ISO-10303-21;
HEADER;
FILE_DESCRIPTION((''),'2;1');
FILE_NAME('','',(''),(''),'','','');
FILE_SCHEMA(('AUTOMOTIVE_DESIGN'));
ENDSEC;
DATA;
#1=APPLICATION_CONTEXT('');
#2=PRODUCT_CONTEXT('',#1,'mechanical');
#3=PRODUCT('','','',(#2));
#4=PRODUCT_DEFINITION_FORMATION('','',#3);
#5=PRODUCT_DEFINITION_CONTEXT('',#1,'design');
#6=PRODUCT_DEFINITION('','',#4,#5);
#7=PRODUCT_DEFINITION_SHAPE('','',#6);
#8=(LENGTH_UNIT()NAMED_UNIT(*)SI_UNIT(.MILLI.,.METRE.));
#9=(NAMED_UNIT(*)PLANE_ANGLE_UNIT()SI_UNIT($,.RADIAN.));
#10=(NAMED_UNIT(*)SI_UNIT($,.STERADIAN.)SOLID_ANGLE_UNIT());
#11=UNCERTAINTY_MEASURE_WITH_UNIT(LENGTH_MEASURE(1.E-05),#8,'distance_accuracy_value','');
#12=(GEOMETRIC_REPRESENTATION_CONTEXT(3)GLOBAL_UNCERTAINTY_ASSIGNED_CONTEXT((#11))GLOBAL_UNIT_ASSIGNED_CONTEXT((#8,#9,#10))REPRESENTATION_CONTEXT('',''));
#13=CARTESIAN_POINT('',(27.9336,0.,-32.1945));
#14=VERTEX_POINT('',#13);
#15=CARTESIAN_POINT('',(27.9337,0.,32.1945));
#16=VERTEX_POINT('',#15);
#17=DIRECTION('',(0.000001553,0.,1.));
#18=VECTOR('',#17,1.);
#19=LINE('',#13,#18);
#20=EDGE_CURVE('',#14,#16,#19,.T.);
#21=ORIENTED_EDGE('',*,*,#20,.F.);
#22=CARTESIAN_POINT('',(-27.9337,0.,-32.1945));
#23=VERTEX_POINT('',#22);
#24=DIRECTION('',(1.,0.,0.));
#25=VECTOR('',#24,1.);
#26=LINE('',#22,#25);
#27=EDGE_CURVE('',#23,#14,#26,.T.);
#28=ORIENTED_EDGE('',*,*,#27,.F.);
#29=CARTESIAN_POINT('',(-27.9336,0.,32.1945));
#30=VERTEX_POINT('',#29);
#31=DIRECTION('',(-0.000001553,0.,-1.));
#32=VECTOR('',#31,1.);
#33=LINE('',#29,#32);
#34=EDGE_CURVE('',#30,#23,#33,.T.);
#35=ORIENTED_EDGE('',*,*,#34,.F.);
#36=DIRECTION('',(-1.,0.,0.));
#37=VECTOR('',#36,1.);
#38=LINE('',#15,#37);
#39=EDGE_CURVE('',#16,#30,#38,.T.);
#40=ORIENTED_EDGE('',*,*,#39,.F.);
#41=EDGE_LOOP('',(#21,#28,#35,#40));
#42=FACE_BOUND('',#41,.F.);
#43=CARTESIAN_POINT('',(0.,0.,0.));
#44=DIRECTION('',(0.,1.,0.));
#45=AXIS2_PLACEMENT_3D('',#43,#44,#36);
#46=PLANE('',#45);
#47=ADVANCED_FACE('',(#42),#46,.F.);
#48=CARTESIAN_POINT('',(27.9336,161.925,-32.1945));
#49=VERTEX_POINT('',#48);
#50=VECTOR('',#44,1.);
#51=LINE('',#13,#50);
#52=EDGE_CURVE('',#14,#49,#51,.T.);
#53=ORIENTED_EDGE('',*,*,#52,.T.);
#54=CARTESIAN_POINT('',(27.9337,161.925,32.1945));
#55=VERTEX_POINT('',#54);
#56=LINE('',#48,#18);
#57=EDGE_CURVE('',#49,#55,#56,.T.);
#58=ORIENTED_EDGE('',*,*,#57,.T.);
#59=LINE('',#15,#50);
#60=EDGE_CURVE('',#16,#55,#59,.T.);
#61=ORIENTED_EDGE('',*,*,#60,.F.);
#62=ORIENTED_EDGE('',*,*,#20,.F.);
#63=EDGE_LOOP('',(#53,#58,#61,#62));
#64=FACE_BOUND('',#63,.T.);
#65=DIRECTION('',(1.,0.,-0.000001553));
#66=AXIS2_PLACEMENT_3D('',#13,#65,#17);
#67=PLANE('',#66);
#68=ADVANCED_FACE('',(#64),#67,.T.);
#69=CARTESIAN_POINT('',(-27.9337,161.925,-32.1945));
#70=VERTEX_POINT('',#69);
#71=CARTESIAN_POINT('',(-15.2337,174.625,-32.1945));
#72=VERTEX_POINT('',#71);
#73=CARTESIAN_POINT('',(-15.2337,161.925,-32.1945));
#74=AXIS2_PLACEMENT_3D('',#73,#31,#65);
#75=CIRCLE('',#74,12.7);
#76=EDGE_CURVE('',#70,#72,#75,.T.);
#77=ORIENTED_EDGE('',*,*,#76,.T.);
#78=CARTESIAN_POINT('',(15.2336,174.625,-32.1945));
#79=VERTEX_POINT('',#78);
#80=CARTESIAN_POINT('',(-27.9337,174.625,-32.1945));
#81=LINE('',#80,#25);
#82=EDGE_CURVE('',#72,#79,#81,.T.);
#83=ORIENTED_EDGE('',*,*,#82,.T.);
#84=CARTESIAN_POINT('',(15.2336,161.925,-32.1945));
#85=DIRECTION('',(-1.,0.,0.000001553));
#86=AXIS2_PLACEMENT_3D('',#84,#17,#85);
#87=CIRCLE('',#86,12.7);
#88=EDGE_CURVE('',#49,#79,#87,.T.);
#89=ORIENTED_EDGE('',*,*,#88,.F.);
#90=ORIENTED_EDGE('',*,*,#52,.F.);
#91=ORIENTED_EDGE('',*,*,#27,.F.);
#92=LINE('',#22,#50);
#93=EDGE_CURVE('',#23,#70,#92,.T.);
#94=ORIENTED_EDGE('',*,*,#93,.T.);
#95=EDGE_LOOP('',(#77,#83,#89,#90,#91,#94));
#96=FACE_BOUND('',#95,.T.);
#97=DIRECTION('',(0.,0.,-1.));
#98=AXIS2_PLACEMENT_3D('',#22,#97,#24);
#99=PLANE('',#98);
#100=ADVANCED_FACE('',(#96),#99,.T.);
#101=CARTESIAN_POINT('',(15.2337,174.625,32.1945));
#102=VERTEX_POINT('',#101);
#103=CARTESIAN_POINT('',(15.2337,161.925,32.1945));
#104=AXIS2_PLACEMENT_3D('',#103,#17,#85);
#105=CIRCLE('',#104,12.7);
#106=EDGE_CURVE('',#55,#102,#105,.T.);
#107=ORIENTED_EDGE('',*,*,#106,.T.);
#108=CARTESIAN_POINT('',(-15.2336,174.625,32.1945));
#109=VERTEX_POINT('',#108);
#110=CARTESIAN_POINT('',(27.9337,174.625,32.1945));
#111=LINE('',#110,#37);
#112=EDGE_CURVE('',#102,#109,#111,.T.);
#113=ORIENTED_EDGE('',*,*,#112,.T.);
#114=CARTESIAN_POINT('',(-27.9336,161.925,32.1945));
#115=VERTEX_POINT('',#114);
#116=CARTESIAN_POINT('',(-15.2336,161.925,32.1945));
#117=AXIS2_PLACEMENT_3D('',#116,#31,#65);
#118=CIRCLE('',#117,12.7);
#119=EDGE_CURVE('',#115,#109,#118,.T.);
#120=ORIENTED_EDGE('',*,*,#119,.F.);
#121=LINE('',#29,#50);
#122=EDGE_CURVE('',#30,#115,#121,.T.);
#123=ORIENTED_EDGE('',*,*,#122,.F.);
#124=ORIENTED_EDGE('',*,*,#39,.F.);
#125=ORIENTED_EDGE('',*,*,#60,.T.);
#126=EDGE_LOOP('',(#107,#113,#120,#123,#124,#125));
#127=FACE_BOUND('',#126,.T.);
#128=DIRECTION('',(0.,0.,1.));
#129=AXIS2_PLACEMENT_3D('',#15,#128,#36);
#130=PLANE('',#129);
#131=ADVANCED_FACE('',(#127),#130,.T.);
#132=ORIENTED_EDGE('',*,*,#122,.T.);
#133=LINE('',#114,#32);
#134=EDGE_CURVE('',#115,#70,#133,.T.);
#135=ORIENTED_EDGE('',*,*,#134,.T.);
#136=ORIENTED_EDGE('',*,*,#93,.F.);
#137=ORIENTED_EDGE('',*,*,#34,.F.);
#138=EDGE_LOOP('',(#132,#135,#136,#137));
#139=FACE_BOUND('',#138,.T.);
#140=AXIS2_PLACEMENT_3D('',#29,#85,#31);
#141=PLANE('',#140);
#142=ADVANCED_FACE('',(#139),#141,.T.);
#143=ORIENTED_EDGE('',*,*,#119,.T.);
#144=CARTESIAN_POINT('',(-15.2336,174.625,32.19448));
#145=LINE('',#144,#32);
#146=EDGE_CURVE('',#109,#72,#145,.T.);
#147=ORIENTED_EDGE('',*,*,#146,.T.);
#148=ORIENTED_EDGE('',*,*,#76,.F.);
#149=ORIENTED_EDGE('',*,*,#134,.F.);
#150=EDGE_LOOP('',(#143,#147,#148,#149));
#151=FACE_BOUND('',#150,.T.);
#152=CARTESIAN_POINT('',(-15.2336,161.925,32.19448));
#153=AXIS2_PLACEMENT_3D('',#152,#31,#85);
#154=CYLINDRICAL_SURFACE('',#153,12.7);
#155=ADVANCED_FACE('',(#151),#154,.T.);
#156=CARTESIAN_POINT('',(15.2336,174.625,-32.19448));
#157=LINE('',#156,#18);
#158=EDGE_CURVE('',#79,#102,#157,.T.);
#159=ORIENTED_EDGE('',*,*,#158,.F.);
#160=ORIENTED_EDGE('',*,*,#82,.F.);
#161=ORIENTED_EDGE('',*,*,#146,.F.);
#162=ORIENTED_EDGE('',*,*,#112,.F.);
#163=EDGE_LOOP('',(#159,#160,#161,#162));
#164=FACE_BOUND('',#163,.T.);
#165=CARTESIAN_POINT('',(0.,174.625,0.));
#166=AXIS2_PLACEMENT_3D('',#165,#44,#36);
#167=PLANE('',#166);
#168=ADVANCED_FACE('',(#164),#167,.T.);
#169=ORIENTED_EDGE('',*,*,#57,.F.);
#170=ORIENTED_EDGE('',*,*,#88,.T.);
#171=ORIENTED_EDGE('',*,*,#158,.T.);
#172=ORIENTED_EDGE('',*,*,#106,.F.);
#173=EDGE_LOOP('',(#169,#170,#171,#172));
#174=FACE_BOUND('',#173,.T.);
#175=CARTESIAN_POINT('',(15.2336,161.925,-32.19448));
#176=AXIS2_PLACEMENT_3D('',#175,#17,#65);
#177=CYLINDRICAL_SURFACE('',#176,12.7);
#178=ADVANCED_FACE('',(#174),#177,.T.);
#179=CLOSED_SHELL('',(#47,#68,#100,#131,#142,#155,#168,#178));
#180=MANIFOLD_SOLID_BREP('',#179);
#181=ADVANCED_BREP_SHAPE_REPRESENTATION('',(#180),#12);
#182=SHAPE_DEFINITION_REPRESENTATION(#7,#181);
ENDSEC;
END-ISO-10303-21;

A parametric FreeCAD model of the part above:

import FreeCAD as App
import Part
import Sketcher
Q = App.Units.Quantity


def edges_at(feature, points):
    """Names of the edges that pass closest to the given points."""
    edges = feature.Shape.Edges
    near = lambda p: min(range(len(edges)), key=lambda i: edges[i].distToShape(Part.Vertex(*p))[0])
    return sorted({f"Edge{near(p) + 1}" for p in points})

doc = App.newDocument("Part")
params = doc.addObject("Spreadsheet::Sheet", "Params")
for row, (alias, value) in enumerate([
    ("sketch1_height", "2.535 in"),
    ("pad1_length", "6.875 in"),
    ("fillet_radius", "0.5 in"),
], start=1):
    params.set(f"A{row}", alias)
    params.set(f"B{row}", "=" + value)
    params.setAlias(f"B{row}", alias)

body = doc.addObject("PartDesign::Body", "Body")

# Sketch on XZ plane
sketch1 = doc.addObject("Sketcher::SketchObject", "Sketch")
body.addObject(sketch1)
sketch1.AttachmentSupport = (doc.XZ_Plane, [""])
sketch1.MapMode = "FlatFace"
sketch1.addGeometry([
    Part.LineSegment(App.Vector(-28, 32, 0), App.Vector(28, 32, 0)),
    Part.LineSegment(App.Vector(28, 32, 0), App.Vector(28, -32, 0)),
    Part.LineSegment(App.Vector(28, -32, 0), App.Vector(-28, -32, 0)),
    Part.LineSegment(App.Vector(-28, -32, 0), App.Vector(-28, 32, 0)),
], False)
sketch1.addConstraint([
    Sketcher.Constraint("Coincident", 0, 2, 1, 1),
    Sketcher.Constraint("Coincident", 1, 2, 2, 1),
    Sketcher.Constraint("Coincident", 2, 2, 3, 1),
    Sketcher.Constraint("Coincident", 3, 2, 0, 1),
    Sketcher.Constraint("Horizontal", 0),
    Sketcher.Constraint("Vertical", 1),
    Sketcher.Constraint("Horizontal", 2),
    Sketcher.Constraint("Vertical", 3),
    Sketcher.Constraint("Symmetric", 0, 2, 2, 2, -1, 1),
    Sketcher.Constraint("DistanceY", 1, 2, 1, 1, Q("2.535 in")),
    Sketcher.Constraint("DistanceX", 0, 1, 0, 2, Q("2.1995 in")),
])
sketch1.setExpression("Constraints[9]", "Params.sketch1_height")
pad1 = doc.addObject("PartDesign::Pad", "Pad")
body.addObject(pad1)
pad1.Profile = sketch1
pad1.setExpression("Length", "Params.pad1_length")
pad1.Reversed = True
doc.recompute()

fillet = doc.addObject("PartDesign::Fillet", "Fillet")
body.addObject(fillet)
fillet.Base = (pad1, edges_at(pad1, [(-27.934, 174.625, 0), (27.934, 174.625, 0)]))
fillet.setExpression("Radius", "Params.fillet_radius")

doc.recompute()
